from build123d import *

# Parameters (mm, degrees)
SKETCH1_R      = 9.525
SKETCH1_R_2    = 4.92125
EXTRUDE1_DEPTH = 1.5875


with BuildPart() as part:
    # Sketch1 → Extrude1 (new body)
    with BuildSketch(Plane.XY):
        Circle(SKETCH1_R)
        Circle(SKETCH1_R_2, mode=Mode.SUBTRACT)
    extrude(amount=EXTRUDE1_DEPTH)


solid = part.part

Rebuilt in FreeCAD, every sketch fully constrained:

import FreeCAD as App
import Part
import Sketcher

V = App.Vector
Q = App.Units.Quantity

doc = App.newDocument("Part")
body = doc.addObject("PartDesign::Body", "Body")

# Sketch on XY plane
sketch1 = doc.addObject("Sketcher::SketchObject", "Sketch")
body.addObject(sketch1)
sketch1.AttachmentSupport = (doc.XY_Plane, [""])
sketch1.MapMode = "FlatFace"
sketch1.addGeometry(Part.Circle(V(0, 0, 0), V(0, 0, 1), 9.5), False)
sketch1.addGeometry(Part.Circle(V(0, 0, 0), V(0, 0, 1), 4.9), False)
sketch1.addConstraint(Sketcher.Constraint("Coincident", 0, 3, -1, 1))
sketch1.addConstraint(Sketcher.Constraint("Coincident", 1, 3, -1, 1))
sketch1.addConstraint(Sketcher.Constraint("Diameter", 0, Q("0.75 in")))
sketch1.addConstraint(Sketcher.Constraint("Diameter", 1, Q("0.3875 in")))
pad1 = doc.addObject("PartDesign::Pad", "Pad")
body.addObject(pad1)
pad1.Profile = sketch1
pad1.Length = Q("0.0625 in")

doc.recompute()
